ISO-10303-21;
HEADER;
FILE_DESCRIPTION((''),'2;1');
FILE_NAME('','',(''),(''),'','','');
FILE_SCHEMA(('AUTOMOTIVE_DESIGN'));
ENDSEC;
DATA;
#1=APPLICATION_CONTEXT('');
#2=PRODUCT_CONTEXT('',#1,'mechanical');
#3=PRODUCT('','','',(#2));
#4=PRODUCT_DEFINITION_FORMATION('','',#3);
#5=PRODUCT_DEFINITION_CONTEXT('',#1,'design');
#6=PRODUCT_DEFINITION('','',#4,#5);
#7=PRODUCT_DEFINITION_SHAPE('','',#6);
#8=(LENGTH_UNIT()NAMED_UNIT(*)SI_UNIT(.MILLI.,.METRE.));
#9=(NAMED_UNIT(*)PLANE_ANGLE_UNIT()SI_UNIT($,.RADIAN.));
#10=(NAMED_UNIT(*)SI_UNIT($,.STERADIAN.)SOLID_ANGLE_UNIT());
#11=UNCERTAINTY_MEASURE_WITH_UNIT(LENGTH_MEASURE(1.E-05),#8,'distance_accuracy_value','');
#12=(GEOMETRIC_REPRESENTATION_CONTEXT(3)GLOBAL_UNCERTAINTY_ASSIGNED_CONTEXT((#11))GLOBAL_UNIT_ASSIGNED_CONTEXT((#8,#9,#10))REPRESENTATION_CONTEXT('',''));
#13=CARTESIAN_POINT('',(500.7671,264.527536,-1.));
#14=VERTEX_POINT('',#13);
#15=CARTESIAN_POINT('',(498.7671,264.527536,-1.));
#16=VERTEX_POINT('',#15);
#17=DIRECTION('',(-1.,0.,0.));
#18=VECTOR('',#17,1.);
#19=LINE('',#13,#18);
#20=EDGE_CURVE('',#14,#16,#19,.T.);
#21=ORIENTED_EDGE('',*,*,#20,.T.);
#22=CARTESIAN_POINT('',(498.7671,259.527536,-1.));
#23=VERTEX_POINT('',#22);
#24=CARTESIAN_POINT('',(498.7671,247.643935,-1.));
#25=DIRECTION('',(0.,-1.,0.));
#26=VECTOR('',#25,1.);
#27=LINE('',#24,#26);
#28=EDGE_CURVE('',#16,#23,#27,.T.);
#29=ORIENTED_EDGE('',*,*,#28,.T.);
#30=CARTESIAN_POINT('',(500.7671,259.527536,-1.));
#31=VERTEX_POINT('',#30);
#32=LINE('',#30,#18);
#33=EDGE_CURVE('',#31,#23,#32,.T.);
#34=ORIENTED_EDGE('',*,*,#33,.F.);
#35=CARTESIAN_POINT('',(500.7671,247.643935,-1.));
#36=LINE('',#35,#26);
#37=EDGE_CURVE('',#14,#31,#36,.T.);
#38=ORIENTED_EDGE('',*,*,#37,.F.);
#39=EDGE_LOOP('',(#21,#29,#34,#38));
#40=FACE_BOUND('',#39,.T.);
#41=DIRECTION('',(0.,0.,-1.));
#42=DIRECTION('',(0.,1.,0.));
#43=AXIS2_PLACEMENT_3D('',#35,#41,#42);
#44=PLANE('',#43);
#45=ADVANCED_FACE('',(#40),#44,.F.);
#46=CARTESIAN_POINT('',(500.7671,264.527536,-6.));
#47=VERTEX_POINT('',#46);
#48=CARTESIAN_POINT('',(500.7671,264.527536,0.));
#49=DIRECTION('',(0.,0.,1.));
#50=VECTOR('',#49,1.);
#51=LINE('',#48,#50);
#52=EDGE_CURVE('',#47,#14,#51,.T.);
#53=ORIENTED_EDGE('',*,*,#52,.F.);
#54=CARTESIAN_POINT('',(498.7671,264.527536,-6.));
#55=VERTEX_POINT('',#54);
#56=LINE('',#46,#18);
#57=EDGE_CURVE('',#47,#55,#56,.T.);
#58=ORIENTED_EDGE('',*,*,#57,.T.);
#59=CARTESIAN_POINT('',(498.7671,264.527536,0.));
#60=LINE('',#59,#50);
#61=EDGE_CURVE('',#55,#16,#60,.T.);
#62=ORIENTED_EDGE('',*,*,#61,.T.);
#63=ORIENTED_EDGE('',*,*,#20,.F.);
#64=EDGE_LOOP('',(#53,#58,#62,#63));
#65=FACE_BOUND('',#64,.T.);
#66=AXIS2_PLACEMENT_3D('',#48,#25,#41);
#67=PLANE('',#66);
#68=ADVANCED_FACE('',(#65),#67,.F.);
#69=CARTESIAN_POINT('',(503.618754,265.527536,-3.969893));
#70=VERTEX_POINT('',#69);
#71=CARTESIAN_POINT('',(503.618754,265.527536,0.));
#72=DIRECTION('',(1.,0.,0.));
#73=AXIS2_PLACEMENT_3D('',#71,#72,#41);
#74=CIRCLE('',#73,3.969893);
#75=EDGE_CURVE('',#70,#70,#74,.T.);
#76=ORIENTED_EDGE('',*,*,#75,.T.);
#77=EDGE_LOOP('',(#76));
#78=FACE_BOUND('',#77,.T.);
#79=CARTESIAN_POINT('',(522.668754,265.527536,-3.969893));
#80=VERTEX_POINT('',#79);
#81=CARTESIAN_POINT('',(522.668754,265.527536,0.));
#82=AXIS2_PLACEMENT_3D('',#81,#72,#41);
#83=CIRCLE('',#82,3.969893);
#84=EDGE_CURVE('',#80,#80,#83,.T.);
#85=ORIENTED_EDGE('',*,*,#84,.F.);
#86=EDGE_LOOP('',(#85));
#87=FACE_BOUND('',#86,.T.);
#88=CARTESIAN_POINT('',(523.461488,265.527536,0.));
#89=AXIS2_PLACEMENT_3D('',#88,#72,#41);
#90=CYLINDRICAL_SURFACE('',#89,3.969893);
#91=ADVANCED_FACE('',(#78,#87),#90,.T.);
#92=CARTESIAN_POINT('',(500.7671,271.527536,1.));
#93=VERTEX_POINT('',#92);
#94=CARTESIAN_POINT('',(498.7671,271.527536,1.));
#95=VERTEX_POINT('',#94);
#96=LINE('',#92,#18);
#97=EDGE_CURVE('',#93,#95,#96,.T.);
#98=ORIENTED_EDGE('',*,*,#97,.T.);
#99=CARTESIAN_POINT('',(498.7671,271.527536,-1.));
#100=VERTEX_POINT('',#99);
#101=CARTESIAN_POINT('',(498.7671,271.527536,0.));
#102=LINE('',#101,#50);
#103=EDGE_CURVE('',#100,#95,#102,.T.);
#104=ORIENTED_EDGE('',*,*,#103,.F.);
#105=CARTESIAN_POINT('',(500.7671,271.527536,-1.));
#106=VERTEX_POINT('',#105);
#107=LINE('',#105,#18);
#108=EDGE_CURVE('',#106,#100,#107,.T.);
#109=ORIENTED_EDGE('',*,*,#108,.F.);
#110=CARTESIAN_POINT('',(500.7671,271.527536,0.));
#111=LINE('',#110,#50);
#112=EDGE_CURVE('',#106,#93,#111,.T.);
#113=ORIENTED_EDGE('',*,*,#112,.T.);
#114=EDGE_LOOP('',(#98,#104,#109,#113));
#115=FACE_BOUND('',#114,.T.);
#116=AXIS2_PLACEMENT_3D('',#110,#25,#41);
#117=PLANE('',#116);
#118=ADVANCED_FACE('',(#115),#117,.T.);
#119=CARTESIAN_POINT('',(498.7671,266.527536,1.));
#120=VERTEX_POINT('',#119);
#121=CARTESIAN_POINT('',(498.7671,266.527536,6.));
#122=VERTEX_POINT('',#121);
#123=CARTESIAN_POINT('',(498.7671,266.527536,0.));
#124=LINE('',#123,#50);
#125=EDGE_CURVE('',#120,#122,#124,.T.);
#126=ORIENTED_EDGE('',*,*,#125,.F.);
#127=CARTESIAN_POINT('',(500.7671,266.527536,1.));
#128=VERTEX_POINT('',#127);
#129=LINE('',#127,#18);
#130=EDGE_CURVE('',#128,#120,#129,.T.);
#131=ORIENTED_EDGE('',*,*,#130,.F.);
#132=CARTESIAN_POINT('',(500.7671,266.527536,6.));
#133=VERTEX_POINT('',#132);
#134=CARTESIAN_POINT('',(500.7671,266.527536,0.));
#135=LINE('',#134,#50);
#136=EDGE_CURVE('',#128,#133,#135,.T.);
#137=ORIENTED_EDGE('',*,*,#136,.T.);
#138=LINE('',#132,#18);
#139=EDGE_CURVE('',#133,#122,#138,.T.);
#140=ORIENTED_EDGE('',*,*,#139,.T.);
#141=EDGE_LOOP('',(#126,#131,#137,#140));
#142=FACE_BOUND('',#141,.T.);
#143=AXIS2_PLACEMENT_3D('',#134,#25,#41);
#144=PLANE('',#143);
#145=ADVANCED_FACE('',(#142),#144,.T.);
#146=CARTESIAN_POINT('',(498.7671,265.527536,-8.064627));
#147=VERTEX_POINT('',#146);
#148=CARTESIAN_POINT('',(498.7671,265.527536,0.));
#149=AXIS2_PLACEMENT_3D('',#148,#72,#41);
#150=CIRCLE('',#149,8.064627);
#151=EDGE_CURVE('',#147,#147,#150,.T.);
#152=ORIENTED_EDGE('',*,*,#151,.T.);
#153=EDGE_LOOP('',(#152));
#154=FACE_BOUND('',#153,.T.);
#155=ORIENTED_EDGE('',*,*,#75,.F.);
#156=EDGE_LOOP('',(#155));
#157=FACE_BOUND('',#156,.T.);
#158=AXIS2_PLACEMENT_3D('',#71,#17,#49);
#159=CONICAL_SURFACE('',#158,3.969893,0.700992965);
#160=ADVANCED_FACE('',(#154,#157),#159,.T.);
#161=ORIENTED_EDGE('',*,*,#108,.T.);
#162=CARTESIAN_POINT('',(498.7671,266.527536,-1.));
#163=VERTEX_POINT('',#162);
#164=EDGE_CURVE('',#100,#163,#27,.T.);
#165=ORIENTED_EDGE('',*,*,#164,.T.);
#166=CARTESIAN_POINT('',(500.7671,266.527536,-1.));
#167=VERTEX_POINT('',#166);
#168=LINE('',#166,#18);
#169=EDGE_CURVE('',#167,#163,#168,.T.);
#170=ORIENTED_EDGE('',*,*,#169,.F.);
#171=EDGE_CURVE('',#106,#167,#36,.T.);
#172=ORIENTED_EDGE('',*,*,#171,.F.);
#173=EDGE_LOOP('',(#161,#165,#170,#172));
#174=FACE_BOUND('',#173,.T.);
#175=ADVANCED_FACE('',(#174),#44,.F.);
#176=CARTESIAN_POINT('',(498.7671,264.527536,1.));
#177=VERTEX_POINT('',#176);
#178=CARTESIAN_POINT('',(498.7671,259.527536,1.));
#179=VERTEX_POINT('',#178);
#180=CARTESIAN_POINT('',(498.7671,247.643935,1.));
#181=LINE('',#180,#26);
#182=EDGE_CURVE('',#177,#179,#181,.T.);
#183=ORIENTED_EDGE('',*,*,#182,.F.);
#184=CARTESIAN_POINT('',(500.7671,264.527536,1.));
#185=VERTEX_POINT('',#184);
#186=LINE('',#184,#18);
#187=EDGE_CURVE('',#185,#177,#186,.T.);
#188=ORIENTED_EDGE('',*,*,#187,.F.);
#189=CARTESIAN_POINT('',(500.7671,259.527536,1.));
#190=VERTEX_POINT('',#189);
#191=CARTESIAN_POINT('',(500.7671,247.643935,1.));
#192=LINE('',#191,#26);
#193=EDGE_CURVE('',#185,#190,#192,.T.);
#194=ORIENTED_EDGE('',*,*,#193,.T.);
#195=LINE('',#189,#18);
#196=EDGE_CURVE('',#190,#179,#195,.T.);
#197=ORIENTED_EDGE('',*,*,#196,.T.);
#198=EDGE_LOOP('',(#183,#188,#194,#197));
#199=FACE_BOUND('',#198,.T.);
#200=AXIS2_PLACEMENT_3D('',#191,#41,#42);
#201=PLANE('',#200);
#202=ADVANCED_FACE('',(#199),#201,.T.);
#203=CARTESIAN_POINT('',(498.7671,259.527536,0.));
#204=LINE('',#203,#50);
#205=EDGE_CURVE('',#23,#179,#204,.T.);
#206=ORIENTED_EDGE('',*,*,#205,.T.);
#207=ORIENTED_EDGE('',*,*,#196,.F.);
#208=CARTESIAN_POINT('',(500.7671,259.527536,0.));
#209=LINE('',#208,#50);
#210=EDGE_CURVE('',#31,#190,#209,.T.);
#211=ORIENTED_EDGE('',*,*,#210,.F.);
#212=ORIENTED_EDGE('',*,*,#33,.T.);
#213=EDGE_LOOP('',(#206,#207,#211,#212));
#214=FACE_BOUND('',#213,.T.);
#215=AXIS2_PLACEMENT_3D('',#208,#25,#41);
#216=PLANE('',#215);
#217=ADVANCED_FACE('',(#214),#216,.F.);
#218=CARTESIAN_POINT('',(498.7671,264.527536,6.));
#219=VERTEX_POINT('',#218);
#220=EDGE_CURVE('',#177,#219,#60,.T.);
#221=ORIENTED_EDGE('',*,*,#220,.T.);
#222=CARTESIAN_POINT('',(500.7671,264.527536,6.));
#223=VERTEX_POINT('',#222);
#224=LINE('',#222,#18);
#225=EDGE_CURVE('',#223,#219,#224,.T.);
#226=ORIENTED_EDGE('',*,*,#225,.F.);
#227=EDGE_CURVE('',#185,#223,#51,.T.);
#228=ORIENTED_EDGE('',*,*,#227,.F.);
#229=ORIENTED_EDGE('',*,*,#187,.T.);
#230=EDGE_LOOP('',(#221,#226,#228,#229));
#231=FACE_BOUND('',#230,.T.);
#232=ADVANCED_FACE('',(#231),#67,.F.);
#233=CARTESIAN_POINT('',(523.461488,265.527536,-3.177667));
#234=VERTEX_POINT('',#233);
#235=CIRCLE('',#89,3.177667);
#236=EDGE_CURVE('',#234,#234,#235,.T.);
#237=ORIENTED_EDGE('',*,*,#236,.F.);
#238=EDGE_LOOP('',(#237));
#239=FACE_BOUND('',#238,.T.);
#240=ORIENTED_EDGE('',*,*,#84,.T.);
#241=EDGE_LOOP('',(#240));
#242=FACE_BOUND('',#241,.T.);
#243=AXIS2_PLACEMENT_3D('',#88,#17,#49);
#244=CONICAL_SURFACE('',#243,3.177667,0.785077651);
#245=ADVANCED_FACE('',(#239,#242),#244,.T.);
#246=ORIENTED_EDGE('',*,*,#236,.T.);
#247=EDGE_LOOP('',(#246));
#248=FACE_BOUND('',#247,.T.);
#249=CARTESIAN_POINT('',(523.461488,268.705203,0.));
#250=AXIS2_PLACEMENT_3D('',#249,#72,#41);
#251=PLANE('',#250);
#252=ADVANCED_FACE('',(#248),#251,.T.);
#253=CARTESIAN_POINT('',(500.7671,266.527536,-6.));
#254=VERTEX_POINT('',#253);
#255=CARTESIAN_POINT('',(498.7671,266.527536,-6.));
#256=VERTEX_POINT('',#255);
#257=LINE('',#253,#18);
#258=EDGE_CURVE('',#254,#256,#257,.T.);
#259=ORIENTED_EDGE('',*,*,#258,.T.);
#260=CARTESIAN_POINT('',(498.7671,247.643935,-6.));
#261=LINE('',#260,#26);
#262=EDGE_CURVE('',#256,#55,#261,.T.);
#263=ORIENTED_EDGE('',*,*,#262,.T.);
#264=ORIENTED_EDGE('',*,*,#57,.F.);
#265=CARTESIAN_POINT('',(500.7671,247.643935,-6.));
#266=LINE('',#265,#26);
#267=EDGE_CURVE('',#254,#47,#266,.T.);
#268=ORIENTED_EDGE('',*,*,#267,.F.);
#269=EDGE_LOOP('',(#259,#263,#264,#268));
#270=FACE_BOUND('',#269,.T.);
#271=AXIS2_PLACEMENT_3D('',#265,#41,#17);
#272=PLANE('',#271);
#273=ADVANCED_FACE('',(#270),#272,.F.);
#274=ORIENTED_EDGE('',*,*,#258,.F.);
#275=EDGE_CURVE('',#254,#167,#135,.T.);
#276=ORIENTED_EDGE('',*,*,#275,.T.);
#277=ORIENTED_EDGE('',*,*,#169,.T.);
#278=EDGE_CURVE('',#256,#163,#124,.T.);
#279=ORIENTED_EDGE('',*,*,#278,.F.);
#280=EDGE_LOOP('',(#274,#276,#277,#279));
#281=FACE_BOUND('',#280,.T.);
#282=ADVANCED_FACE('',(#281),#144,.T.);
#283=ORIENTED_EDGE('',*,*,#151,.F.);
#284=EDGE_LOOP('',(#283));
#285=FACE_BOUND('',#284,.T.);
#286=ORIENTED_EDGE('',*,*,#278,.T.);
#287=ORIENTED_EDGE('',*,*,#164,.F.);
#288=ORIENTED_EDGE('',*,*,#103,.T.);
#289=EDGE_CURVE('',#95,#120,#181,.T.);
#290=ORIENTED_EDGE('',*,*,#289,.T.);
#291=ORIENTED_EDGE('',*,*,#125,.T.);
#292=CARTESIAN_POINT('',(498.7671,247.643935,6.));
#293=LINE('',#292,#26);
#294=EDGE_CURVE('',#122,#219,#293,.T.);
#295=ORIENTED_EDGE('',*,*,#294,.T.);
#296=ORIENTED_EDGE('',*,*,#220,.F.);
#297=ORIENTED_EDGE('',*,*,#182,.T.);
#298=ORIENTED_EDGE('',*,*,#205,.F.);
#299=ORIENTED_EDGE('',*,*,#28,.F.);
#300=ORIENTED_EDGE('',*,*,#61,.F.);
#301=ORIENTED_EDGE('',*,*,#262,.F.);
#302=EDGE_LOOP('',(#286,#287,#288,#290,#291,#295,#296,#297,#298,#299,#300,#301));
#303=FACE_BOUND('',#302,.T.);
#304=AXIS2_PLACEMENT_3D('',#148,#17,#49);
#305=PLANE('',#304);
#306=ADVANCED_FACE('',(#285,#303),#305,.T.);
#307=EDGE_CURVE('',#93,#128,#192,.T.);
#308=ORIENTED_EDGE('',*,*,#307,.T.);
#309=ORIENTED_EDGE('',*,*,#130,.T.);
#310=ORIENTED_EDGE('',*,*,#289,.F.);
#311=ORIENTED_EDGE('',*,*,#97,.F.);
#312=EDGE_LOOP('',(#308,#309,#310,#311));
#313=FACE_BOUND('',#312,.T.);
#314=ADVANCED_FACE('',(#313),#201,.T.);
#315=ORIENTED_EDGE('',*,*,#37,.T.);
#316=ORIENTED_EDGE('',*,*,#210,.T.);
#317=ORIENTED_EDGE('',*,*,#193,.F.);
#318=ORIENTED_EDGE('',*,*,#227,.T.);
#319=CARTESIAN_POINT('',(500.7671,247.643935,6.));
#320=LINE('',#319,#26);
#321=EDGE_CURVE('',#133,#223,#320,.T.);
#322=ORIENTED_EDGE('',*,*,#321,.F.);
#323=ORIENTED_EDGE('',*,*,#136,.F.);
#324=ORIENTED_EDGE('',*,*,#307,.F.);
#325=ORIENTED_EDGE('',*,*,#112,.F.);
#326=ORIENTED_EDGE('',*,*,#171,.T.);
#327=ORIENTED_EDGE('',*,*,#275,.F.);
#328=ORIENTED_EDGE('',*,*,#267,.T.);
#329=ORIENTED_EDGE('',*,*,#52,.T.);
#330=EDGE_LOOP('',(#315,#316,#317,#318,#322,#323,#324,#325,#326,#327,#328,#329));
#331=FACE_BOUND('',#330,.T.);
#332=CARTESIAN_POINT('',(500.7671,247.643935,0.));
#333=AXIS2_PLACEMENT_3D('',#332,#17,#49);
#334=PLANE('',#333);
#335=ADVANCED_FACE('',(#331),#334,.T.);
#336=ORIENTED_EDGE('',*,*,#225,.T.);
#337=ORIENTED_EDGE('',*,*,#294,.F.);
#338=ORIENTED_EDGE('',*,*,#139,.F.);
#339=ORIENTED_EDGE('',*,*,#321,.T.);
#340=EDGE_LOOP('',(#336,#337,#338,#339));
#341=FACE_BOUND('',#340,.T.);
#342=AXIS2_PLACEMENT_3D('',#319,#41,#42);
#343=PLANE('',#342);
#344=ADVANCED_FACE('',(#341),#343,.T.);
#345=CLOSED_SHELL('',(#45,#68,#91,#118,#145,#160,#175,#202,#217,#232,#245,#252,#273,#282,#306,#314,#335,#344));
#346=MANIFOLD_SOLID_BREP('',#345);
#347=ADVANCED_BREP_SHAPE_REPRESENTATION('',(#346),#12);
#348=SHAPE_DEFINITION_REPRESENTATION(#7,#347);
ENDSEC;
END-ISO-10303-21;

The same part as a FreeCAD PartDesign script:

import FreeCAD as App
import Part
import Sketcher
from FreeCAD import Vector

doc = App.newDocument("Part")
body = doc.addObject("PartDesign::Body", "Body")

sketch1 = body.newObject("Sketcher::SketchObject", "Sketch")
sketch1.AttachmentSupport = (doc.getObject("XY_Plane"), [""])
sketch1.MapMode = "FlatFace"
sketch1.addGeometry(Part.LineSegment(Vector(523.5, 268.7, 0), Vector(522.7, 269.5, 0)), False)
sketch1.addGeometry(Part.LineSegment(Vector(522.7, 269.5, 0), Vector(503.6, 269.5, 0)), False)
sketch1.addGeometry(Part.LineSegment(Vector(503.6, 269.5, 0), Vector(498.8, 273.6, 0)), False)
sketch1.addGeometry(Part.LineSegment(Vector(498.8, 273.6, 0), Vector(498.8, 265.5, 0)), False)
sketch1.addGeometry(Part.LineSegment(Vector(498.8, 265.5, 0), Vector(523.5, 265.5, 0)), False)
sketch1.addGeometry(Part.LineSegment(Vector(523.5, 265.5, 0), Vector(523.5, 268.7, 0)), False)
sketch1.addGeometry(Part.LineSegment(Vector(523.5, 265.5, 0), Vector(498.8, 265.5, 0)), True)
sketch1.addConstraint(Sketcher.Constraint("Coincident", 0, 2, 1, 1))
sketch1.addConstraint(Sketcher.Constraint("Coincident", 1, 2, 2, 1))
sketch1.addConstraint(Sketcher.Constraint("Coincident", 2, 2, 3, 1))
sketch1.addConstraint(Sketcher.Constraint("Coincident", 3, 2, 4, 1))
sketch1.addConstraint(Sketcher.Constraint("Coincident", 4, 2, 5, 1))
sketch1.addConstraint(Sketcher.Constraint("Coincident", 5, 2, 0, 1))
sketch1.addConstraint(Sketcher.Constraint("Horizontal", 1))
sketch1.addConstraint(Sketcher.Constraint("Vertical", 3))
sketch1.addConstraint(Sketcher.Constraint("Horizontal", 4))
sketch1.addConstraint(Sketcher.Constraint("Vertical", 5))
sketch1.addConstraint(Sketcher.Constraint("Horizontal", 6))
sketch1.addConstraint(Sketcher.Constraint("Coincident", 6, 1, 4, 2))
sketch1.addConstraint(Sketcher.Constraint("Vertical", 2, 2, 6, 2))
sketch1.addConstraint(Sketcher.Constraint("DistanceX", 1, 2, 1, 1, 19.05))
sketch1.addConstraint(Sketcher.Constraint("DistanceX", 4, 1, 4, 2, 24.694388))
sketch1.addConstraint(Sketcher.Constraint("DistanceX", -1, 1, 2, 2, 498.7671))
sketch1.addConstraint(Sketcher.Constraint("DistanceY", 3, 2, 3, 1, 8.064627))
sketch1.addConstraint(Sketcher.Constraint("DistanceY", 5, 1, 5, 2, 3.177667))
sketch1.addConstraint(Sketcher.Constraint("DistanceY", -1, 1, 0, 2, 269.497429))
sketch1.addConstraint(Sketcher.Constraint("Distance", 0, 1.120736))
sketch1.addConstraint(Sketcher.Constraint("Distance", 2, 6.348653))
revolution = body.newObject("PartDesign::Revolution", "Revolution")
revolution.Profile = sketch1
revolution.ReferenceAxis = (sketch1, ["Axis0"])
revolution.Angle = 360

sketch2 = body.newObject("Sketcher::SketchObject", "Sketch001")
sketch2.AttachmentSupport = (doc.getObject("YZ_Plane"), [""])
sketch2.MapMode = "FlatFace"
sketch2.AttachmentOffset = App.Placement(Vector(0, 0, 498.7671), App.Rotation())
sketch2.addGeometry(Part.LineSegment(Vector(266.5, 1, 0), Vector(271.5, 1, 0)), False)
sketch2.addGeometry(Part.LineSegment(Vector(271.5, 1, 0), Vector(271.5, -1, 0)), False)
sketch2.addGeometry(Part.LineSegment(Vector(271.5, -1, 0), Vector(266.5, -1, 0)), False)
sketch2.addGeometry(Part.LineSegment(Vector(266.5, -1, 0), Vector(266.5, -6, 0)), False)
sketch2.addGeometry(Part.LineSegment(Vector(266.5, -6, 0), Vector(264.5, -6, 0)), False)
sketch2.addGeometry(Part.LineSegment(Vector(264.5, -6, 0), Vector(264.5, -1, 0)), False)
sketch2.addGeometry(Part.LineSegment(Vector(264.5, -1, 0), Vector(259.5, -1, 0)), False)
sketch2.addGeometry(Part.LineSegment(Vector(259.5, -1, 0), Vector(259.5, 1, 0)), False)
sketch2.addGeometry(Part.LineSegment(Vector(259.5, 1, 0), Vector(264.5, 1, 0)), False)
sketch2.addGeometry(Part.LineSegment(Vector(264.5, 1, 0), Vector(264.5, 6, 0)), False)
sketch2.addGeometry(Part.LineSegment(Vector(264.5, 6, 0), Vector(266.5, 6, 0)), False)
sketch2.addGeometry(Part.LineSegment(Vector(266.5, 6, 0), Vector(266.5, 1, 0)), False)
sketch2.addConstraint(Sketcher.Constraint("Coincident", 0, 2, 1, 1))
sketch2.addConstraint(Sketcher.Constraint("Coincident", 1, 2, 2, 1))
sketch2.addConstraint(Sketcher.Constraint("Coincident", 2, 2, 3, 1))
sketch2.addConstraint(Sketcher.Constraint("Coincident", 3, 2, 4, 1))
sketch2.addConstraint(Sketcher.Constraint("Coincident", 4, 2, 5, 1))
sketch2.addConstraint(Sketcher.Constraint("Coincident", 5, 2, 6, 1))
sketch2.addConstraint(Sketcher.Constraint("Coincident", 6, 2, 7, 1))
sketch2.addConstraint(Sketcher.Constraint("Coincident", 7, 2, 8, 1))
sketch2.addConstraint(Sketcher.Constraint("Coincident", 8, 2, 9, 1))
sketch2.addConstraint(Sketcher.Constraint("Coincident", 9, 2, 10, 1))
sketch2.addConstraint(Sketcher.Constraint("Coincident", 10, 2, 11, 1))
sketch2.addConstraint(Sketcher.Constraint("Coincident", 11, 2, 0, 1))
sketch2.addConstraint(Sketcher.Constraint("Horizontal", 0))
sketch2.addConstraint(Sketcher.Constraint("Vertical", 1))
sketch2.addConstraint(Sketcher.Constraint("Horizontal", 2))
sketch2.addConstraint(Sketcher.Constraint("Vertical", 3))
sketch2.addConstraint(Sketcher.Constraint("Horizontal", 4))
sketch2.addConstraint(Sketcher.Constraint("Vertical", 5))
sketch2.addConstraint(Sketcher.Constraint("Horizontal", 6))
sketch2.addConstraint(Sketcher.Constraint("Vertical", 7))
sketch2.addConstraint(Sketcher.Constraint("Horizontal", 8))
sketch2.addConstraint(Sketcher.Constraint("Vertical", 9))
sketch2.addConstraint(Sketcher.Constraint("Horizontal", 10))
sketch2.addConstraint(Sketcher.Constraint("Vertical", 11))
sketch2.addConstraint(Sketcher.Constraint("Symmetric", 5, 2, 8, 2, -1))
sketch2.addConstraint(Sketcher.Constraint("Symmetric", 3, 2, 10, 2, -1))
sketch2.addConstraint(Sketcher.Constraint("Horizontal", 2, 2, 5, 2))
sketch2.addConstraint(Sketcher.Constraint("Horizontal", 0, 2, 7, 2))
sketch2.addConstraint(Sketcher.Constraint("Equal", 2, 6))
sketch2.addConstraint(Sketcher.Constraint("Equal", 10, 1))
sketch2.addConstraint(Sketcher.Constraint("Equal", 8, 3))
sketch2.addConstraint(Sketcher.Constraint("DistanceX", 0, 1, 0, 2, 5.0))
sketch2.addConstraint(Sketcher.Constraint("DistanceX", 4, 2, 4, 1, 2.0))
sketch2.addConstraint(Sketcher.Constraint("DistanceX", -1, 1, 0, 2, 271.527536))
pocket1 = body.newObject("PartDesign::Pocket", "Pocket")
pocket1.Profile = sketch2
pocket1.Length = 2
pocket1.Reversed = True

doc.recompute()
